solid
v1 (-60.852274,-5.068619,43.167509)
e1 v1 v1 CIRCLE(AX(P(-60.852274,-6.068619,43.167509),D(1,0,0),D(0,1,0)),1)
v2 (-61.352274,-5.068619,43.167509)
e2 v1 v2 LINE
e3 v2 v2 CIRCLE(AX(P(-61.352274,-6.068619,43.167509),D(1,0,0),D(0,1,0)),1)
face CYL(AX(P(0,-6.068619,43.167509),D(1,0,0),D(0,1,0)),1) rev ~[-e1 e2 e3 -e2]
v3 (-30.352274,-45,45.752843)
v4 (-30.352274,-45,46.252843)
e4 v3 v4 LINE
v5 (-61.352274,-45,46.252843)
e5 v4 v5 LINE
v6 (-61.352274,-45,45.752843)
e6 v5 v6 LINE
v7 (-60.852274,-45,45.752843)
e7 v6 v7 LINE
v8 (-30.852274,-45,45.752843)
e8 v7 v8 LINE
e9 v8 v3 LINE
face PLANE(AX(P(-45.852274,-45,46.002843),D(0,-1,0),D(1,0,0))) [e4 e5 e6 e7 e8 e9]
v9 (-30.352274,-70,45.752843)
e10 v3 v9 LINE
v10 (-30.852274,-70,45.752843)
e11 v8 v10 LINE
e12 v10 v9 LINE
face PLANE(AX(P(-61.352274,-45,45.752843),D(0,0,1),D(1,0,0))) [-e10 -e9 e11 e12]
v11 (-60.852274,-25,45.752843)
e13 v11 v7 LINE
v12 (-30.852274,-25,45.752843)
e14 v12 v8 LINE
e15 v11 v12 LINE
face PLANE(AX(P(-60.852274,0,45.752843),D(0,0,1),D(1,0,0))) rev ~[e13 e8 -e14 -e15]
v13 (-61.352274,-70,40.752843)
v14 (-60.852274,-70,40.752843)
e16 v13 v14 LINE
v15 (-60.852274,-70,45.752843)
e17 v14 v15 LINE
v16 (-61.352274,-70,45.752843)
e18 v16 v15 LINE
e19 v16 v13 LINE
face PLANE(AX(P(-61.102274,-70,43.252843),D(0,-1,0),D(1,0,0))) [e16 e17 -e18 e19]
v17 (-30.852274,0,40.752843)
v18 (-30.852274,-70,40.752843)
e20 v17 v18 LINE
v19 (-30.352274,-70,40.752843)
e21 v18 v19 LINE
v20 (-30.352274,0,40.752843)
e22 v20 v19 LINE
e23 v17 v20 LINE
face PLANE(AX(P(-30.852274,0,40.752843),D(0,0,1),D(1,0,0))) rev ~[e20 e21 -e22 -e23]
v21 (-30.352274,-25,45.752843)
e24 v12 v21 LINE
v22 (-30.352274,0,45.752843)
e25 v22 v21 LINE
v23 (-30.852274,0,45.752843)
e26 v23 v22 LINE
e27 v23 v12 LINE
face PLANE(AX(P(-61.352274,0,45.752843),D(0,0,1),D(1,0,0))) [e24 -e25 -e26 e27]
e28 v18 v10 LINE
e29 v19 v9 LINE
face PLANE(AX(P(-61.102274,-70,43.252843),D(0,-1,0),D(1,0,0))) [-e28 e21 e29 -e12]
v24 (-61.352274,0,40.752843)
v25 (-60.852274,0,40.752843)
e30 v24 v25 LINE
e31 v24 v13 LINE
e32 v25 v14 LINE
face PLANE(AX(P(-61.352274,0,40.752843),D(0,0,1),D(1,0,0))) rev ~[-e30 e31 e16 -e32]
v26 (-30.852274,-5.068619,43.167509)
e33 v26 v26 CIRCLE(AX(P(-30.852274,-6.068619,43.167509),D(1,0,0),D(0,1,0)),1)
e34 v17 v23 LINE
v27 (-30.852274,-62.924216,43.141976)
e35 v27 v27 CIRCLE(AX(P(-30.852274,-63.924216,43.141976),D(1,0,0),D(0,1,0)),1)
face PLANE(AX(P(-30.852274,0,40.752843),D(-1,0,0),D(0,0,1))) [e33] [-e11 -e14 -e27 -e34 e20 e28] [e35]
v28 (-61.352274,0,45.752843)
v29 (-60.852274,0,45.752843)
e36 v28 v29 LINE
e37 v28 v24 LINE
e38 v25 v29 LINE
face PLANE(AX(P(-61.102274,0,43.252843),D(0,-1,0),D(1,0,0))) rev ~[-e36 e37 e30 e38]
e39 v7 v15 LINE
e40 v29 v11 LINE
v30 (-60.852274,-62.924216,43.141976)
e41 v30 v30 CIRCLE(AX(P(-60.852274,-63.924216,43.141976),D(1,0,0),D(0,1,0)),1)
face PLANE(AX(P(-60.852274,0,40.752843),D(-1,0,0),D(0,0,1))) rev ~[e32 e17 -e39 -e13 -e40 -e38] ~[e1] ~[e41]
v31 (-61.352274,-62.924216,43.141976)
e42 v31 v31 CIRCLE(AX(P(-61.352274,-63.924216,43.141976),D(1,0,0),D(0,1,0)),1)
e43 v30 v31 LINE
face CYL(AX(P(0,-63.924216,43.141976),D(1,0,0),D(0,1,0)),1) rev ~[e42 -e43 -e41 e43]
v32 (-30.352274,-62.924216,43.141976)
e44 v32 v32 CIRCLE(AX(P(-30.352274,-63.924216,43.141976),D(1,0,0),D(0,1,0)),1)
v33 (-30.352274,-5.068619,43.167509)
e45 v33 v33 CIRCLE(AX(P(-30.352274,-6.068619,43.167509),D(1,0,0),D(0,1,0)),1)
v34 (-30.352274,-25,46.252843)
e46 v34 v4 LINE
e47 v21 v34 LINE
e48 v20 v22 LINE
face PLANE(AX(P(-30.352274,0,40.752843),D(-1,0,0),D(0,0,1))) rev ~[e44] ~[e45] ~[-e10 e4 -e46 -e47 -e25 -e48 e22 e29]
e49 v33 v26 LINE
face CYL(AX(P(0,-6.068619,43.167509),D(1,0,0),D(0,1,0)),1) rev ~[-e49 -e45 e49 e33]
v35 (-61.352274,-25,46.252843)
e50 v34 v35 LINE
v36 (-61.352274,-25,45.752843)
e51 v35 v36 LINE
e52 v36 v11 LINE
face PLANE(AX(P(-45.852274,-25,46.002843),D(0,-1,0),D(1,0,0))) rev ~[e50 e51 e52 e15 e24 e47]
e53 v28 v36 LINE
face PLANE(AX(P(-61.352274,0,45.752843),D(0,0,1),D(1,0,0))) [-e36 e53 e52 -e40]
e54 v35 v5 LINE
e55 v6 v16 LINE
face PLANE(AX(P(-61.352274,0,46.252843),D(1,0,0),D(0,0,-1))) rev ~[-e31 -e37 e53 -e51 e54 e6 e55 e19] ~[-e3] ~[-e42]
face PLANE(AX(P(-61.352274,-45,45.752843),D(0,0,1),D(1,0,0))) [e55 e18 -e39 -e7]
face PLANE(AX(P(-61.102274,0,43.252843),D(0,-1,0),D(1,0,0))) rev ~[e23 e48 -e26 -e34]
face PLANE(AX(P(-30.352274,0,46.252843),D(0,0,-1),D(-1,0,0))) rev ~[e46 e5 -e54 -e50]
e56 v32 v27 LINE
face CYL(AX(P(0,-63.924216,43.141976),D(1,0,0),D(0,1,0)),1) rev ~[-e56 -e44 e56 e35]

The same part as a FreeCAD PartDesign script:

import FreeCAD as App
import Part
import Sketcher

V = App.Vector


def add_polygon(sketch, points):
    """Adds a closed chain of lines whose ends are joined by coincident constraints."""
    first, n = sketch.GeometryCount, len(points)
    for a, b in zip(points, points[1:] + points[:1]):
        sketch.addGeometry(Part.LineSegment(App.Vector(*a, 0), App.Vector(*b, 0)), False)
    for i in range(n):
        sketch.addConstraint(Sketcher.Constraint("Coincident", first + i, 2, first + (i + 1) % n, 1))

doc = App.newDocument("Part")
body = doc.addObject("PartDesign::Body", "Body")

# Sketch on XZ plane
sketch1 = body.newObject("Sketcher::SketchObject", "Sketch")
sketch1.AttachmentSupport = (doc.getObject("XZ_Plane"), [""])
sketch1.MapMode = "FlatFace"
add_polygon(sketch1, [(-61.4, 40.8), (-60.9, 40.8), (-60.9, 45.8), (-30.9, 45.8), (-30.9, 40.8), (-30.4, 40.8), (-30.4, 46.3), (-61.4, 46.3)])  # lines 0-7
sketch1.addConstraint([
    Sketcher.Constraint("Horizontal", 0),
    Sketcher.Constraint("Vertical", 1),
    Sketcher.Constraint("Horizontal", 2),
    Sketcher.Constraint("Vertical", 3),
    Sketcher.Constraint("Horizontal", 4),
    Sketcher.Constraint("Vertical", 5),
    Sketcher.Constraint("Horizontal", 6),
    Sketcher.Constraint("Vertical", 7),
    Sketcher.Constraint("Horizontal", 0, 2, 3, 2),
    Sketcher.Constraint("Equal", 0, 4),
    Sketcher.Constraint("DistanceX", 2, 1, 2, 2, 30.0),
    Sketcher.Constraint("DistanceX", 6, 2, 6, 1, 31.0),
    Sketcher.Constraint("DistanceY", 1, 1, 1, 2, 5.0),
    Sketcher.Constraint("DistanceY", 5, 1, 5, 2, 5.5),
    Sketcher.Constraint("DistanceX", 0, 2, -1, 1, 60.852274),
    Sketcher.Constraint("DistanceY", -1, 1, 0, 2, 40.752843),
])
pad1 = body.newObject("PartDesign::Pad", "Pad")
pad1.Profile = sketch1
pad1.Length = 70

# Sketch on XZ plane
sketch2 = body.newObject("Sketcher::SketchObject", "Sketch001")
sketch2.AttachmentSupport = (doc.getObject("XZ_Plane"), [""])
sketch2.MapMode = "FlatFace"
add_polygon(sketch2, [(-61.4, 45.8), (-30.4, 45.8), (-30.4, 46.3), (-61.4, 46.3)])  # lines 0-3
sketch2.addConstraint([
    Sketcher.Constraint("Horizontal", 0),
    Sketcher.Constraint("Vertical", 1),
    Sketcher.Constraint("Horizontal", 2),
    Sketcher.Constraint("Vertical", 3),
    Sketcher.Constraint("DistanceX", 0, 1, 0, 2, 31.0),
    Sketcher.Constraint("DistanceY", 1, 1, 1, 2, 0.5),
    Sketcher.Constraint("DistanceX", 0, 2, -1, 1, 30.352274),
    Sketcher.Constraint("DistanceY", -1, 1, 0, 2, 45.752843),
])
pocket1 = body.newObject("PartDesign::Pocket", "Pocket")
pocket1.Profile = sketch2
pocket1.Length = 25
pocket1.Reversed = True

# Sketch on XZ plane
sketch3 = body.newObject("Sketcher::SketchObject", "Sketch002")
sketch3.AttachmentSupport = (doc.getObject("XZ_Plane"), [""])
sketch3.MapMode = "FlatFace"
sketch3.AttachmentOffset = App.Placement(V(0, 0, 45), App.Rotation())
add_polygon(sketch3, [(-61.4, 45.8), (-30.4, 45.8), (-30.4, 46.3), (-61.4, 46.3)])  # lines 0-3
sketch3.addConstraint([
    Sketcher.Constraint("Horizontal", 0),
    Sketcher.Constraint("Vertical", 1),
    Sketcher.Constraint("Horizontal", 2),
    Sketcher.Constraint("Vertical", 3),
    Sketcher.Constraint("DistanceX", 0, 1, 0, 2, 31.0),
    Sketcher.Constraint("DistanceY", 1, 1, 1, 2, 0.5),
    Sketcher.Constraint("DistanceX", 0, 2, -1, 1, 30.352274),
    Sketcher.Constraint("DistanceY", -1, 1, 0, 2, 45.752843),
])
pocket2 = body.newObject("PartDesign::Pocket", "Pocket001")
pocket2.Profile = sketch3
pocket2.Length = 25
pocket2.Reversed = True

# Sketch on YZ plane
sketch4 = body.newObject("Sketcher::SketchObject", "Sketch003")
sketch4.AttachmentSupport = (doc.getObject("YZ_Plane"), [""])
sketch4.MapMode = "FlatFace"
sketch4.addGeometry(Part.Circle(V(-63.9, 43.1, 0), V(0, 0, 1), 1), False)
sketch4.addConstraint([
    Sketcher.Constraint("Diameter", 0, 2.0),
    Sketcher.Constraint("DistanceX", 0, 3, -1, 1, 63.924216),
    Sketcher.Constraint("DistanceY", -1, 1, 0, 3, 43.141976),
])
pocket3 = body.newObject("PartDesign::Pocket", "Pocket002")
pocket3.Profile = sketch4
pocket3.Length = 84.25

# Sketch on YZ plane
sketch5 = body.newObject("Sketcher::SketchObject", "Sketch004")
sketch5.AttachmentSupport = (doc.getObject("YZ_Plane"), [""])
sketch5.MapMode = "FlatFace"
sketch5.addGeometry(Part.Circle(V(-6.1, 43.2, 0), V(0, 0, 1), 1), False)
sketch5.addConstraint([
    Sketcher.Constraint("Diameter", 0, 2.0),
    Sketcher.Constraint("DistanceX", 0, 3, -1, 1, 6.068619),
    Sketcher.Constraint("DistanceY", -1, 1, 0, 3, 43.167509),
])
pocket4 = body.newObject("PartDesign::Pocket", "Pocket003")
pocket4.Profile = sketch5
pocket4.Length = 160.25

doc.recompute()
